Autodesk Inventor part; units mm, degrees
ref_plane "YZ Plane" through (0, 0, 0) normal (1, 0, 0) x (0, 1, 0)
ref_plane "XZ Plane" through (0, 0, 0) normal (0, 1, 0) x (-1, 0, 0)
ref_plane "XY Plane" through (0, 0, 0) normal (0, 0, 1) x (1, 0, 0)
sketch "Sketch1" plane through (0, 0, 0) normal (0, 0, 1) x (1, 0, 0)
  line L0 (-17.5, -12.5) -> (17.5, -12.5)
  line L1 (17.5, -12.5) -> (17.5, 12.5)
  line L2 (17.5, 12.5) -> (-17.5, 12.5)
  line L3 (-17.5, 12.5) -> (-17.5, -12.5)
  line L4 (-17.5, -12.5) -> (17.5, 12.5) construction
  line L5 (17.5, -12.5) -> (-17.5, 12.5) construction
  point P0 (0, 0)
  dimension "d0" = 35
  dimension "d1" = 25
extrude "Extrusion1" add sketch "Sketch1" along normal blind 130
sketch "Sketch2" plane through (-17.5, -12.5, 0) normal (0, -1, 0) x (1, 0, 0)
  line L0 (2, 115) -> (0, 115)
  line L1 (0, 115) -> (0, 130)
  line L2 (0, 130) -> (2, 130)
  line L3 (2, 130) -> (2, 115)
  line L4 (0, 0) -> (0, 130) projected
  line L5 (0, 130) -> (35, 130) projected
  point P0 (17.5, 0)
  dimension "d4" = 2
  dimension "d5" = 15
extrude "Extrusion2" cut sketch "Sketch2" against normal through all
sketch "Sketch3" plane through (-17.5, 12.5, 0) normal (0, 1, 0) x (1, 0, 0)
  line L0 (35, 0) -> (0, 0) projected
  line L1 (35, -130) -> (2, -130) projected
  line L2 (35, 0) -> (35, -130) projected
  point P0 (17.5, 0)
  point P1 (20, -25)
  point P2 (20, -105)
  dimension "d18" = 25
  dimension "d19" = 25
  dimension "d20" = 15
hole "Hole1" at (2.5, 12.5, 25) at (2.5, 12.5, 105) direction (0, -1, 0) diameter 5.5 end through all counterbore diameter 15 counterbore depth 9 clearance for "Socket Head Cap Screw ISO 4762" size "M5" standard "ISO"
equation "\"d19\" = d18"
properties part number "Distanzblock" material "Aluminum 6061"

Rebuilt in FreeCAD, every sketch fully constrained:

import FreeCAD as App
import Part
import Sketcher
Q = App.Units.Quantity

doc = App.newDocument("Part")
body = doc.addObject("PartDesign::Body", "Body")

# Sketch on XY plane
sketch1 = body.newObject("Sketcher::SketchObject", "Sketch")
sketch1.AttachmentSupport = (doc.getObject("XY_Plane"), [""])
sketch1.MapMode = "FlatFace"
sketch1.addGeometry(Part.LineSegment(App.Vector(-18, 12, 0), App.Vector(-18, -12, 0)), False)
sketch1.addGeometry(Part.LineSegment(App.Vector(-18, -12, 0), App.Vector(18, -12, 0)), False)
sketch1.addGeometry(Part.LineSegment(App.Vector(18, -12, 0), App.Vector(18, 12, 0)), False)
sketch1.addGeometry(Part.LineSegment(App.Vector(18, 12, 0), App.Vector(-18, 12, 0)), False)
sketch1.addConstraint(Sketcher.Constraint("Coincident", 0, 2, 1, 1))
sketch1.addConstraint(Sketcher.Constraint("Coincident", 1, 2, 2, 1))
sketch1.addConstraint(Sketcher.Constraint("Coincident", 2, 2, 3, 1))
sketch1.addConstraint(Sketcher.Constraint("Coincident", 3, 2, 0, 1))
sketch1.addConstraint(Sketcher.Constraint("Vertical", 0))
sketch1.addConstraint(Sketcher.Constraint("Horizontal", 1))
sketch1.addConstraint(Sketcher.Constraint("Vertical", 2))
sketch1.addConstraint(Sketcher.Constraint("Horizontal", 3))
sketch1.addConstraint(Sketcher.Constraint("Symmetric", 0, 2, 2, 2, -1, 1))
sketch1.addConstraint(Sketcher.Constraint("DistanceX", 1, 1, 1, 2, Q("35 mm")))
sketch1.addConstraint(Sketcher.Constraint("DistanceY", 0, 2, 0, 1, Q("25 mm")))
pad1 = body.newObject("PartDesign::Pad", "Pad")
pad1.Profile = sketch1
pad1.Length = 130

# Sketch on XZ plane
sketch2 = body.newObject("Sketcher::SketchObject", "Sketch001")
sketch2.AttachmentSupport = (doc.getObject("XZ_Plane"), [""])
sketch2.MapMode = "FlatFace"
sketch2.AttachmentOffset = App.Placement(App.Vector(0, 0, 12.5), App.Rotation())
sketch2.addGeometry(Part.LineSegment(App.Vector(-17.5, 115, 0), App.Vector(-15.5, 115, 0)), False)
sketch2.addGeometry(Part.LineSegment(App.Vector(-15.5, 115, 0), App.Vector(-15.5, 130, 0)), False)
sketch2.addGeometry(Part.LineSegment(App.Vector(-15.5, 130, 0), App.Vector(-17.5, 130, 0)), False)
sketch2.addGeometry(Part.LineSegment(App.Vector(-17.5, 130, 0), App.Vector(-17.5, 115, 0)), False)
sketch2.addConstraint(Sketcher.Constraint("Coincident", 0, 2, 1, 1))
sketch2.addConstraint(Sketcher.Constraint("Coincident", 1, 2, 2, 1))
sketch2.addConstraint(Sketcher.Constraint("Coincident", 2, 2, 3, 1))
sketch2.addConstraint(Sketcher.Constraint("Coincident", 3, 2, 0, 1))
sketch2.addConstraint(Sketcher.Constraint("Horizontal", 0))
sketch2.addConstraint(Sketcher.Constraint("Vertical", 1))
sketch2.addConstraint(Sketcher.Constraint("Horizontal", 2))
sketch2.addConstraint(Sketcher.Constraint("Vertical", 3))
sketch2.addConstraint(Sketcher.Constraint("DistanceX", 0, 1, 0, 2, Q("2 mm")))
sketch2.addConstraint(Sketcher.Constraint("DistanceY", 1, 1, 1, 2, Q("15 mm")))
sketch2.addConstraint(Sketcher.Constraint("DistanceY", -1, 1, 0, 2, Q("115 mm")))
sketch2.addConstraint(Sketcher.Constraint("DistanceX", 0, 2, -1, 1, Q("15.5 mm")))
pocket1 = body.newObject("PartDesign::Pocket", "Pocket")
pocket1.Profile = sketch2
pocket1.Type = "ThroughAll"

# Sketch on XZ plane
sketch3 = body.newObject("Sketcher::SketchObject", "Sketch002")
sketch3.AttachmentSupport = (doc.getObject("XZ_Plane"), [""])
sketch3.MapMode = "FlatFace"
sketch3.AttachmentOffset = App.Placement(App.Vector(0, 0, -12.5), App.Rotation())
sketch3.addGeometry(Part.Circle(App.Vector(2.5, 25, 0), App.Vector(0, 0, 1), 2.8), False)
sketch3.addGeometry(Part.Circle(App.Vector(2.5, 105, 0), App.Vector(0, 0, 1), 2.8), False)
sketch3.addConstraint(Sketcher.Constraint("Equal", 0, 1))
sketch3.addConstraint(Sketcher.Constraint("Vertical", 0, 3, 1, 3))
sketch3.addConstraint(Sketcher.Constraint("Diameter", 0, Q("5.5 mm")))
sketch3.addConstraint(Sketcher.Constraint("DistanceY", -1, 1, 0, 3, Q("25 mm")))
sketch3.addConstraint(Sketcher.Constraint("DistanceY", -1, 1, 1, 3, Q("105 mm")))
sketch3.addConstraint(Sketcher.Constraint("DistanceX", -1, 1, 0, 3, Q("2.5 mm")))
doc.recompute()
hole = body.newObject("PartDesign::Hole", "Hole")
hole.Profile = sketch3
hole.ThreadType = "None"
hole.Diameter = 5.5
hole.DepthType = "ThroughAll"
hole.HoleCutType = "Counterbore"
hole.HoleCutDiameter = 15
hole.HoleCutDepth = 9
hole.Reversed = True

doc.recompute()
